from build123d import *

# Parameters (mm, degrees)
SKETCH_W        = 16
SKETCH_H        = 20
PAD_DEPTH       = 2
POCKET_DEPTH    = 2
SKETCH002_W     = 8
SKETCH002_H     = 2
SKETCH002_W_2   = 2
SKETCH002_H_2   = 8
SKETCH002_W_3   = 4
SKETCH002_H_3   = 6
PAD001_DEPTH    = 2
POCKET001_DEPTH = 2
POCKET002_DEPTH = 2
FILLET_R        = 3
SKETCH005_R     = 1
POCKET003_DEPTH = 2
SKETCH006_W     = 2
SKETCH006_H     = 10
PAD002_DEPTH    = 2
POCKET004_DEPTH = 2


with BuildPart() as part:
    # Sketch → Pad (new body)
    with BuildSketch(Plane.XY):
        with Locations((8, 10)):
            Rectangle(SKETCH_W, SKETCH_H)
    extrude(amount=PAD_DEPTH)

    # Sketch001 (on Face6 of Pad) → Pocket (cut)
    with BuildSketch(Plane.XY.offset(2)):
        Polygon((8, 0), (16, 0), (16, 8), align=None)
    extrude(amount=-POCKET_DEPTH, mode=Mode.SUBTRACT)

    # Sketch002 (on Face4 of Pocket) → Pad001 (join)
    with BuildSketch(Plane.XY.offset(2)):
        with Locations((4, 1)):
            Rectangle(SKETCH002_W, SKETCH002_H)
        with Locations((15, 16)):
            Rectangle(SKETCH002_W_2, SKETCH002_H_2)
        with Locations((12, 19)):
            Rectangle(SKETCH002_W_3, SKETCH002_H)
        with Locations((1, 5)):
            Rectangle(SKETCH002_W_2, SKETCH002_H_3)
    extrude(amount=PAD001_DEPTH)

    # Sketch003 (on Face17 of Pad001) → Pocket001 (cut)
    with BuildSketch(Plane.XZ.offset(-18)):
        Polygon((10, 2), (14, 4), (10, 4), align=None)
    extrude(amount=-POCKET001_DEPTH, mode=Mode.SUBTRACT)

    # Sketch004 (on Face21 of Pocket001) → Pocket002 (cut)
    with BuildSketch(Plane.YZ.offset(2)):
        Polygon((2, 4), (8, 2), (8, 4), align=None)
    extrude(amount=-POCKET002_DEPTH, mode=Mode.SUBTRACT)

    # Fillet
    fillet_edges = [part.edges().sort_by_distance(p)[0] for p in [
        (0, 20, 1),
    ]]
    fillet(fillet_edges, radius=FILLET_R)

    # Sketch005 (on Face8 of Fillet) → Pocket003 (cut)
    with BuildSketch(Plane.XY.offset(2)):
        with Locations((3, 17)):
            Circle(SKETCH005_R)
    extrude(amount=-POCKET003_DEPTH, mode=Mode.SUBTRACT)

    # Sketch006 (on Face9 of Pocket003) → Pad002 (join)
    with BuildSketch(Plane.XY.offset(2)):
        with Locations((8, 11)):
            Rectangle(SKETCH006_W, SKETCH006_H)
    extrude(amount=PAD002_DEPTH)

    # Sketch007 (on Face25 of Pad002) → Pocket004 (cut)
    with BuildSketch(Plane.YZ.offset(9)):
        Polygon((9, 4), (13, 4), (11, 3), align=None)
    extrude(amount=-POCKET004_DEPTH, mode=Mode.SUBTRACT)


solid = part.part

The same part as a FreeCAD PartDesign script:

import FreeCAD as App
import Part
import Sketcher

V = App.Vector
Q = App.Units.Quantity


def edges_at(feature, points):
    """Names of the edges that pass closest to the given points."""
    edges = feature.Shape.Edges
    near = lambda p: min(range(len(edges)), key=lambda i: edges[i].distToShape(Part.Vertex(*p))[0])
    return sorted({f"Edge{near(p) + 1}" for p in points})

doc = App.newDocument("Part")
body = doc.addObject("PartDesign::Body", "Body")

sketch1 = body.newObject("Sketcher::SketchObject", "Sketch")
sketch1.AttachmentSupport = (doc.getObject("XY_Plane"), [""])
sketch1.MapMode = "FlatFace"
sketch1.addGeometry([
    Part.LineSegment(V(0, 20, 0), V(0, 0, 0)),
    Part.LineSegment(V(0, 0, 0), V(16, 0, 0)),
    Part.LineSegment(V(16, 0, 0), V(16, 20, 0)),
    Part.LineSegment(V(16, 20, 0), V(0, 20, 0)),
], False)
sketch1.addConstraint([
    Sketcher.Constraint("Coincident", 0, 2, 1, 1),
    Sketcher.Constraint("Coincident", 1, 2, 2, 1),
    Sketcher.Constraint("Coincident", 2, 2, 3, 1),
    Sketcher.Constraint("Coincident", 3, 2, 0, 1),
    Sketcher.Constraint("Vertical", 0),
    Sketcher.Constraint("Horizontal", 1),
    Sketcher.Constraint("Vertical", 2),
    Sketcher.Constraint("Horizontal", 3),
    Sketcher.Constraint("Coincident", 0, 2, -1, 1),
    Sketcher.Constraint("DistanceX", 1, 1, 1, 2, Q("16 mm")),
    Sketcher.Constraint("DistanceY", 0, 2, 0, 1, Q("20 mm")),
])
pad1 = body.newObject("PartDesign::Pad", "Pad")
pad1.Profile = sketch1
pad1.Length = 2

sketch2 = body.newObject("Sketcher::SketchObject", "Sketch001")
sketch2.AttachmentSupport = (doc.getObject("XY_Plane"), [""])
sketch2.MapMode = "FlatFace"
sketch2.AttachmentOffset = App.Placement(V(0, 0, 2), App.Rotation())
sketch2.addGeometry([
    Part.LineSegment(V(8, 0, 0), V(16, 0, 0)),
    Part.LineSegment(V(16, 0, 0), V(16, 8, 0)),
    Part.LineSegment(V(16, 8, 0), V(8, 0, 0)),
], False)
sketch2.addConstraint([
    Sketcher.Constraint("Coincident", 0, 2, 1, 1),
    Sketcher.Constraint("Coincident", 1, 2, 2, 1),
    Sketcher.Constraint("Coincident", 2, 2, 0, 1),
    Sketcher.Constraint("Horizontal", 0),
    Sketcher.Constraint("Vertical", 1),
    Sketcher.Constraint("PointOnObject", 0, 2, -1),
    Sketcher.Constraint("Equal", 0, 1),
    Sketcher.Constraint("DistanceX", 0, 1, 0, 2, Q("8 mm")),
    Sketcher.Constraint("DistanceX", -1, 1, 0, 2, Q("16 mm")),
])
pocket1 = body.newObject("PartDesign::Pocket", "Pocket")
pocket1.Profile = sketch2
pocket1.Length = 2

sketch3 = body.newObject("Sketcher::SketchObject", "Sketch002")
sketch3.AttachmentSupport = (doc.getObject("XY_Plane"), [""])
sketch3.MapMode = "FlatFace"
sketch3.AttachmentOffset = App.Placement(V(0, 0, 2), App.Rotation())
sketch3.addGeometry([
    Part.LineSegment(V(0, 0, 0), V(8, 0, 0)),
    Part.LineSegment(V(8, 0, 0), V(8, 2, 0)),
    Part.LineSegment(V(8, 2, 0), V(2, 2, 0)),
    Part.LineSegment(V(2, 2, 0), V(2, 8, 0)),
    Part.LineSegment(V(2, 8, 0), V(0, 8, 0)),
    Part.LineSegment(V(0, 8, 0), V(0, 0, 0)),
    Part.LineSegment(V(14, 18, 0), V(14, 12, 0)),
    Part.LineSegment(V(14, 12, 0), V(16, 12, 0)),
    Part.LineSegment(V(16, 12, 0), V(16, 20, 0)),
    Part.LineSegment(V(16, 20, 0), V(10, 20, 0)),
    Part.LineSegment(V(10, 20, 0), V(10, 18, 0)),
    Part.LineSegment(V(10, 18, 0), V(14, 18, 0)),
], False)
sketch3.addConstraint([
    Sketcher.Constraint("Coincident", 0, 2, 1, 1),
    Sketcher.Constraint("Coincident", 1, 2, 2, 1),
    Sketcher.Constraint("Coincident", 2, 2, 3, 1),
    Sketcher.Constraint("Coincident", 3, 2, 4, 1),
    Sketcher.Constraint("Coincident", 4, 2, 5, 1),
    Sketcher.Constraint("Coincident", 5, 2, 0, 1),
    Sketcher.Constraint("Coincident", 6, 2, 7, 1),
    Sketcher.Constraint("Coincident", 7, 2, 8, 1),
    Sketcher.Constraint("Coincident", 8, 2, 9, 1),
    Sketcher.Constraint("Coincident", 9, 2, 10, 1),
    Sketcher.Constraint("Coincident", 10, 2, 11, 1),
    Sketcher.Constraint("Coincident", 11, 2, 6, 1),
    Sketcher.Constraint("Horizontal", 0),
    Sketcher.Constraint("Vertical", 1),
    Sketcher.Constraint("Horizontal", 2),
    Sketcher.Constraint("Vertical", 3),
    Sketcher.Constraint("Horizontal", 4),
    Sketcher.Constraint("Vertical", 5),
    Sketcher.Constraint("Vertical", 6),
    Sketcher.Constraint("Horizontal", 7),
    Sketcher.Constraint("Vertical", 8),
    Sketcher.Constraint("Horizontal", 9),
    Sketcher.Constraint("Vertical", 10),
    Sketcher.Constraint("Horizontal", 11),
    Sketcher.Constraint("Coincident", 5, 2, -1, 1),
    Sketcher.Constraint("Equal", 4, 7),
    Sketcher.Constraint("Equal", 2, 9),
    Sketcher.Constraint("Equal", 7, 1),
    Sketcher.Constraint("Equal", 9, 3),
    Sketcher.Constraint("Equal", 3, 6),
    Sketcher.Constraint("Equal", 5, 8),
    Sketcher.Constraint("DistanceX", 0, 1, 0, 2, Q("8 mm")),
    Sketcher.Constraint("DistanceX", 2, 2, 2, 1, Q("6 mm")),
    Sketcher.Constraint("DistanceX", -1, 1, 6, 2, Q("14 mm")),
    Sketcher.Constraint("DistanceY", -1, 1, 6, 2, Q("12 mm")),
])
pad2 = body.newObject("PartDesign::Pad", "Pad001")
pad2.Profile = sketch3
pad2.Length = 2

sketch4 = body.newObject("Sketcher::SketchObject", "Sketch003")
sketch4.AttachmentSupport = (doc.getObject("XZ_Plane"), [""])
sketch4.MapMode = "FlatFace"
sketch4.AttachmentOffset = App.Placement(V(0, 0, -18), App.Rotation())
sketch4.addGeometry([
    Part.LineSegment(V(10, 2, 0), V(14, 4, 0)),
    Part.LineSegment(V(14, 4, 0), V(10, 4, 0)),
    Part.LineSegment(V(10, 4, 0), V(10, 2, 0)),
], False)
sketch4.addConstraint([
    Sketcher.Constraint("Coincident", 0, 2, 1, 1),
    Sketcher.Constraint("Coincident", 1, 2, 2, 1),
    Sketcher.Constraint("Coincident", 2, 2, 0, 1),
    Sketcher.Constraint("Horizontal", 1),
    Sketcher.Constraint("Vertical", 2),
    Sketcher.Constraint("DistanceX", 1, 2, 1, 1, Q("4 mm")),
    Sketcher.Constraint("DistanceY", 2, 2, 2, 1, Q("2 mm")),
    Sketcher.Constraint("DistanceX", -1, 1, 0, 2, Q("14 mm")),
    Sketcher.Constraint("DistanceY", -1, 1, 0, 2, Q("4 mm")),
])
pocket2 = body.newObject("PartDesign::Pocket", "Pocket001")
pocket2.Profile = sketch4
pocket2.Length = 2

sketch5 = body.newObject("Sketcher::SketchObject", "Sketch004")
sketch5.AttachmentSupport = (doc.getObject("YZ_Plane"), [""])
sketch5.MapMode = "FlatFace"
sketch5.AttachmentOffset = App.Placement(V(0, 0, 2), App.Rotation())
sketch5.addGeometry([
    Part.LineSegment(V(2, 4, 0), V(8, 2, 0)),
    Part.LineSegment(V(8, 2, 0), V(8, 4, 0)),
    Part.LineSegment(V(8, 4, 0), V(2, 4, 0)),
], False)
sketch5.addConstraint([
    Sketcher.Constraint("Coincident", 0, 2, 1, 1),
    Sketcher.Constraint("Coincident", 1, 2, 2, 1),
    Sketcher.Constraint("Coincident", 2, 2, 0, 1),
    Sketcher.Constraint("Vertical", 1),
    Sketcher.Constraint("Horizontal", 2),
    Sketcher.Constraint("DistanceX", 2, 2, 2, 1, Q("6 mm")),
    Sketcher.Constraint("DistanceY", 1, 1, 1, 2, Q("2 mm")),
    Sketcher.Constraint("DistanceX", -1, 1, 0, 2, Q("8 mm")),
    Sketcher.Constraint("DistanceY", -1, 1, 0, 2, Q("2 mm")),
])
pocket3 = body.newObject("PartDesign::Pocket", "Pocket002")
pocket3.Profile = sketch5
pocket3.Length = 2
doc.recompute()

fillet = body.newObject("PartDesign::Fillet", "Fillet")
fillet.Base = (pocket3, edges_at(pocket3, [(0, 20, 1)]))
fillet.Radius = 3

sketch6 = body.newObject("Sketcher::SketchObject", "Sketch005")
sketch6.AttachmentSupport = (doc.getObject("XY_Plane"), [""])
sketch6.MapMode = "FlatFace"
sketch6.AttachmentOffset = App.Placement(V(0, 0, 2), App.Rotation())
sketch6.addGeometry(Part.Circle(V(3, 17, 0), V(0, 0, 1), 1), False)
sketch6.addConstraint([
    Sketcher.Constraint("Diameter", 0, Q("2 mm")),
    Sketcher.Constraint("DistanceX", -1, 1, 0, 3, Q("3 mm")),
    Sketcher.Constraint("DistanceY", -1, 1, 0, 3, Q("17 mm")),
])
pocket4 = body.newObject("PartDesign::Pocket", "Pocket003")
pocket4.Profile = sketch6
pocket4.Length = 2

sketch7 = body.newObject("Sketcher::SketchObject", "Sketch006")
sketch7.AttachmentSupport = (doc.getObject("XY_Plane"), [""])
sketch7.MapMode = "FlatFace"
sketch7.AttachmentOffset = App.Placement(V(0, 0, 2), App.Rotation())
sketch7.addGeometry([
    Part.LineSegment(V(7, 16, 0), V(7, 6, 0)),
    Part.LineSegment(V(7, 6, 0), V(9, 6, 0)),
    Part.LineSegment(V(9, 6, 0), V(9, 16, 0)),
    Part.LineSegment(V(9, 16, 0), V(7, 16, 0)),
], False)
sketch7.addConstraint([
    Sketcher.Constraint("Coincident", 0, 2, 1, 1),
    Sketcher.Constraint("Coincident", 1, 2, 2, 1),
    Sketcher.Constraint("Coincident", 2, 2, 3, 1),
    Sketcher.Constraint("Coincident", 3, 2, 0, 1),
    Sketcher.Constraint("Vertical", 0),
    Sketcher.Constraint("Horizontal", 1),
    Sketcher.Constraint("Vertical", 2),
    Sketcher.Constraint("Horizontal", 3),
    Sketcher.Constraint("DistanceX", 1, 1, 1, 2, Q("2 mm")),
    Sketcher.Constraint("DistanceY", 0, 2, 0, 1, Q("10 mm")),
    Sketcher.Constraint("DistanceX", -1, 1, 0, 2, Q("7 mm")),
    Sketcher.Constraint("DistanceY", -1, 1, 0, 2, Q("6 mm")),
])
pad3 = body.newObject("PartDesign::Pad", "Pad002")
pad3.Profile = sketch7
pad3.Length = 2

sketch8 = body.newObject("Sketcher::SketchObject", "Sketch007")
sketch8.AttachmentSupport = (doc.getObject("YZ_Plane"), [""])
sketch8.MapMode = "FlatFace"
sketch8.AttachmentOffset = App.Placement(V(0, 0, 9), App.Rotation())
sketch8.addGeometry([
    Part.LineSegment(V(13, 4, 0), V(9, 4, 0)),
    Part.LineSegment(V(9, 4, 0), V(11, 3, 0)),
    Part.LineSegment(V(11, 3, 0), V(13, 4, 0)),
], False)
sketch8.addConstraint([
    Sketcher.Constraint("Coincident", 0, 2, 1, 1),
    Sketcher.Constraint("Coincident", 1, 2, 2, 1),
    Sketcher.Constraint("Coincident", 2, 2, 0, 1),
    Sketcher.Constraint("Horizontal", 0),
    Sketcher.Constraint("Equal", 1, 2),
    Sketcher.Constraint("DistanceX", 0, 2, 0, 1, Q("4 mm")),
    Sketcher.Constraint("DistanceX", -1, 1, 0, 2, Q("9 mm")),
    Sketcher.Constraint("DistanceY", -1, 1, 0, 2, Q("4 mm")),
    Sketcher.Constraint("DistanceY", -1, 1, 1, 2, Q("3 mm")),
])
pocket5 = body.newObject("PartDesign::Pocket", "Pocket004")
pocket5.Profile = sketch8
pocket5.Length = 2

doc.recompute()
